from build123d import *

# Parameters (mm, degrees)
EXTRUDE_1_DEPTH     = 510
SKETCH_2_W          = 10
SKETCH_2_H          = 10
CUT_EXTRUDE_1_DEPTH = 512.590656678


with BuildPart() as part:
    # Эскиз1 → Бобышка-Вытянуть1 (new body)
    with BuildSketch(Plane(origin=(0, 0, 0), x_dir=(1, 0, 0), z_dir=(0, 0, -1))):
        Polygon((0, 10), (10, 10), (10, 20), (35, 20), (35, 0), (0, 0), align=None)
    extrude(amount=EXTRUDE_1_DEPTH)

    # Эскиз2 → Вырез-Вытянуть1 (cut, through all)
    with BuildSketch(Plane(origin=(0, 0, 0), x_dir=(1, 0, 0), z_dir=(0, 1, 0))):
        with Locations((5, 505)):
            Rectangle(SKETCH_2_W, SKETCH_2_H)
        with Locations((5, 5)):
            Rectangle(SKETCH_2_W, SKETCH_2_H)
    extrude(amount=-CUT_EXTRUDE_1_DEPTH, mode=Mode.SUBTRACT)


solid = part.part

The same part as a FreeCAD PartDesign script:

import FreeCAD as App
import Part
import Sketcher
from FreeCAD import Vector
Q = App.Units.Quantity


def add_polygon(sketch, points):
    """Adds a closed chain of lines whose ends are joined by coincident constraints."""
    first, n = sketch.GeometryCount, len(points)
    for a, b in zip(points, points[1:] + points[:1]):
        sketch.addGeometry(Part.LineSegment(App.Vector(*a, 0), App.Vector(*b, 0)), False)
    for i in range(n):
        sketch.addConstraint(Sketcher.Constraint("Coincident", first + i, 2, first + (i + 1) % n, 1))

doc = App.newDocument("Part")
body = doc.addObject("PartDesign::Body", "Body")

# Sketch on XY plane
sketch1 = doc.addObject("Sketcher::SketchObject", "Sketch")
body.addObject(sketch1)
sketch1.AttachmentSupport = (doc.XY_Plane, [""])
sketch1.MapMode = "FlatFace"
add_polygon(sketch1, [(10, -10), (0, -10), (0, 0), (35, 0), (35, -20), (10, -20)])  # lines 0-5
sketch1.addConstraint(Sketcher.Constraint("Horizontal", 0))
sketch1.addConstraint(Sketcher.Constraint("Vertical", 1))
sketch1.addConstraint(Sketcher.Constraint("Horizontal", 2))
sketch1.addConstraint(Sketcher.Constraint("Vertical", 3))
sketch1.addConstraint(Sketcher.Constraint("Horizontal", 4))
sketch1.addConstraint(Sketcher.Constraint("Vertical", 5))
sketch1.addConstraint(Sketcher.Constraint("Coincident", 1, 2, -1, 1))
sketch1.addConstraint(Sketcher.Constraint("Equal", 0, 1))
sketch1.addConstraint(Sketcher.Constraint("Equal", 1, 5))
sketch1.addConstraint(Sketcher.Constraint("DistanceX", 0, 2, 0, 1, Q("10 mm")))
sketch1.addConstraint(Sketcher.Constraint("DistanceX", 2, 1, 2, 2, Q("35 mm")))
pad1 = doc.addObject("PartDesign::Pad", "Pad")
body.addObject(pad1)
pad1.Profile = sketch1
pad1.Length = 510
pad1.Reversed = True

# Sketch on XZ plane
sketch2 = doc.addObject("Sketcher::SketchObject", "Sketch001")
body.addObject(sketch2)
sketch2.AttachmentSupport = (doc.XZ_Plane, [""])
sketch2.MapMode = "FlatFace"
add_polygon(sketch2, [(0, -510), (0, -500), (10, -500), (10, -510)])  # lines 0-3
add_polygon(sketch2, [(0, -10), (0, 0), (10, 0), (10, -10)])  # lines 4-7
sketch2.addConstraint(Sketcher.Constraint("Vertical", 0))
sketch2.addConstraint(Sketcher.Constraint("Horizontal", 1))
sketch2.addConstraint(Sketcher.Constraint("Vertical", 2))
sketch2.addConstraint(Sketcher.Constraint("Horizontal", 3))
sketch2.addConstraint(Sketcher.Constraint("Vertical", 4))
sketch2.addConstraint(Sketcher.Constraint("Horizontal", 5))
sketch2.addConstraint(Sketcher.Constraint("Vertical", 6))
sketch2.addConstraint(Sketcher.Constraint("Horizontal", 7))
sketch2.addConstraint(Sketcher.Constraint("Coincident", 4, 2, -1, 1))
sketch2.addConstraint(Sketcher.Constraint("PointOnObject", 0, 2, -2))
sketch2.addConstraint(Sketcher.Constraint("Vertical", 2, 2, 5, 2))
sketch2.addConstraint(Sketcher.Constraint("Equal", 7, 0))
sketch2.addConstraint(Sketcher.Constraint("Equal", 2, 4))
sketch2.addConstraint(Sketcher.Constraint("DistanceX", 1, 1, 1, 2, Q("10 mm")))
sketch2.addConstraint(Sketcher.Constraint("DistanceY", 0, 2, -1, 1, Q("500 mm")))
pocket1 = doc.addObject("PartDesign::Pocket", "Pocket")
body.addObject(pocket1)
pocket1.Profile = sketch2
pocket1.Type = "ThroughAll"
pocket1.Reversed = True

doc.recompute()
